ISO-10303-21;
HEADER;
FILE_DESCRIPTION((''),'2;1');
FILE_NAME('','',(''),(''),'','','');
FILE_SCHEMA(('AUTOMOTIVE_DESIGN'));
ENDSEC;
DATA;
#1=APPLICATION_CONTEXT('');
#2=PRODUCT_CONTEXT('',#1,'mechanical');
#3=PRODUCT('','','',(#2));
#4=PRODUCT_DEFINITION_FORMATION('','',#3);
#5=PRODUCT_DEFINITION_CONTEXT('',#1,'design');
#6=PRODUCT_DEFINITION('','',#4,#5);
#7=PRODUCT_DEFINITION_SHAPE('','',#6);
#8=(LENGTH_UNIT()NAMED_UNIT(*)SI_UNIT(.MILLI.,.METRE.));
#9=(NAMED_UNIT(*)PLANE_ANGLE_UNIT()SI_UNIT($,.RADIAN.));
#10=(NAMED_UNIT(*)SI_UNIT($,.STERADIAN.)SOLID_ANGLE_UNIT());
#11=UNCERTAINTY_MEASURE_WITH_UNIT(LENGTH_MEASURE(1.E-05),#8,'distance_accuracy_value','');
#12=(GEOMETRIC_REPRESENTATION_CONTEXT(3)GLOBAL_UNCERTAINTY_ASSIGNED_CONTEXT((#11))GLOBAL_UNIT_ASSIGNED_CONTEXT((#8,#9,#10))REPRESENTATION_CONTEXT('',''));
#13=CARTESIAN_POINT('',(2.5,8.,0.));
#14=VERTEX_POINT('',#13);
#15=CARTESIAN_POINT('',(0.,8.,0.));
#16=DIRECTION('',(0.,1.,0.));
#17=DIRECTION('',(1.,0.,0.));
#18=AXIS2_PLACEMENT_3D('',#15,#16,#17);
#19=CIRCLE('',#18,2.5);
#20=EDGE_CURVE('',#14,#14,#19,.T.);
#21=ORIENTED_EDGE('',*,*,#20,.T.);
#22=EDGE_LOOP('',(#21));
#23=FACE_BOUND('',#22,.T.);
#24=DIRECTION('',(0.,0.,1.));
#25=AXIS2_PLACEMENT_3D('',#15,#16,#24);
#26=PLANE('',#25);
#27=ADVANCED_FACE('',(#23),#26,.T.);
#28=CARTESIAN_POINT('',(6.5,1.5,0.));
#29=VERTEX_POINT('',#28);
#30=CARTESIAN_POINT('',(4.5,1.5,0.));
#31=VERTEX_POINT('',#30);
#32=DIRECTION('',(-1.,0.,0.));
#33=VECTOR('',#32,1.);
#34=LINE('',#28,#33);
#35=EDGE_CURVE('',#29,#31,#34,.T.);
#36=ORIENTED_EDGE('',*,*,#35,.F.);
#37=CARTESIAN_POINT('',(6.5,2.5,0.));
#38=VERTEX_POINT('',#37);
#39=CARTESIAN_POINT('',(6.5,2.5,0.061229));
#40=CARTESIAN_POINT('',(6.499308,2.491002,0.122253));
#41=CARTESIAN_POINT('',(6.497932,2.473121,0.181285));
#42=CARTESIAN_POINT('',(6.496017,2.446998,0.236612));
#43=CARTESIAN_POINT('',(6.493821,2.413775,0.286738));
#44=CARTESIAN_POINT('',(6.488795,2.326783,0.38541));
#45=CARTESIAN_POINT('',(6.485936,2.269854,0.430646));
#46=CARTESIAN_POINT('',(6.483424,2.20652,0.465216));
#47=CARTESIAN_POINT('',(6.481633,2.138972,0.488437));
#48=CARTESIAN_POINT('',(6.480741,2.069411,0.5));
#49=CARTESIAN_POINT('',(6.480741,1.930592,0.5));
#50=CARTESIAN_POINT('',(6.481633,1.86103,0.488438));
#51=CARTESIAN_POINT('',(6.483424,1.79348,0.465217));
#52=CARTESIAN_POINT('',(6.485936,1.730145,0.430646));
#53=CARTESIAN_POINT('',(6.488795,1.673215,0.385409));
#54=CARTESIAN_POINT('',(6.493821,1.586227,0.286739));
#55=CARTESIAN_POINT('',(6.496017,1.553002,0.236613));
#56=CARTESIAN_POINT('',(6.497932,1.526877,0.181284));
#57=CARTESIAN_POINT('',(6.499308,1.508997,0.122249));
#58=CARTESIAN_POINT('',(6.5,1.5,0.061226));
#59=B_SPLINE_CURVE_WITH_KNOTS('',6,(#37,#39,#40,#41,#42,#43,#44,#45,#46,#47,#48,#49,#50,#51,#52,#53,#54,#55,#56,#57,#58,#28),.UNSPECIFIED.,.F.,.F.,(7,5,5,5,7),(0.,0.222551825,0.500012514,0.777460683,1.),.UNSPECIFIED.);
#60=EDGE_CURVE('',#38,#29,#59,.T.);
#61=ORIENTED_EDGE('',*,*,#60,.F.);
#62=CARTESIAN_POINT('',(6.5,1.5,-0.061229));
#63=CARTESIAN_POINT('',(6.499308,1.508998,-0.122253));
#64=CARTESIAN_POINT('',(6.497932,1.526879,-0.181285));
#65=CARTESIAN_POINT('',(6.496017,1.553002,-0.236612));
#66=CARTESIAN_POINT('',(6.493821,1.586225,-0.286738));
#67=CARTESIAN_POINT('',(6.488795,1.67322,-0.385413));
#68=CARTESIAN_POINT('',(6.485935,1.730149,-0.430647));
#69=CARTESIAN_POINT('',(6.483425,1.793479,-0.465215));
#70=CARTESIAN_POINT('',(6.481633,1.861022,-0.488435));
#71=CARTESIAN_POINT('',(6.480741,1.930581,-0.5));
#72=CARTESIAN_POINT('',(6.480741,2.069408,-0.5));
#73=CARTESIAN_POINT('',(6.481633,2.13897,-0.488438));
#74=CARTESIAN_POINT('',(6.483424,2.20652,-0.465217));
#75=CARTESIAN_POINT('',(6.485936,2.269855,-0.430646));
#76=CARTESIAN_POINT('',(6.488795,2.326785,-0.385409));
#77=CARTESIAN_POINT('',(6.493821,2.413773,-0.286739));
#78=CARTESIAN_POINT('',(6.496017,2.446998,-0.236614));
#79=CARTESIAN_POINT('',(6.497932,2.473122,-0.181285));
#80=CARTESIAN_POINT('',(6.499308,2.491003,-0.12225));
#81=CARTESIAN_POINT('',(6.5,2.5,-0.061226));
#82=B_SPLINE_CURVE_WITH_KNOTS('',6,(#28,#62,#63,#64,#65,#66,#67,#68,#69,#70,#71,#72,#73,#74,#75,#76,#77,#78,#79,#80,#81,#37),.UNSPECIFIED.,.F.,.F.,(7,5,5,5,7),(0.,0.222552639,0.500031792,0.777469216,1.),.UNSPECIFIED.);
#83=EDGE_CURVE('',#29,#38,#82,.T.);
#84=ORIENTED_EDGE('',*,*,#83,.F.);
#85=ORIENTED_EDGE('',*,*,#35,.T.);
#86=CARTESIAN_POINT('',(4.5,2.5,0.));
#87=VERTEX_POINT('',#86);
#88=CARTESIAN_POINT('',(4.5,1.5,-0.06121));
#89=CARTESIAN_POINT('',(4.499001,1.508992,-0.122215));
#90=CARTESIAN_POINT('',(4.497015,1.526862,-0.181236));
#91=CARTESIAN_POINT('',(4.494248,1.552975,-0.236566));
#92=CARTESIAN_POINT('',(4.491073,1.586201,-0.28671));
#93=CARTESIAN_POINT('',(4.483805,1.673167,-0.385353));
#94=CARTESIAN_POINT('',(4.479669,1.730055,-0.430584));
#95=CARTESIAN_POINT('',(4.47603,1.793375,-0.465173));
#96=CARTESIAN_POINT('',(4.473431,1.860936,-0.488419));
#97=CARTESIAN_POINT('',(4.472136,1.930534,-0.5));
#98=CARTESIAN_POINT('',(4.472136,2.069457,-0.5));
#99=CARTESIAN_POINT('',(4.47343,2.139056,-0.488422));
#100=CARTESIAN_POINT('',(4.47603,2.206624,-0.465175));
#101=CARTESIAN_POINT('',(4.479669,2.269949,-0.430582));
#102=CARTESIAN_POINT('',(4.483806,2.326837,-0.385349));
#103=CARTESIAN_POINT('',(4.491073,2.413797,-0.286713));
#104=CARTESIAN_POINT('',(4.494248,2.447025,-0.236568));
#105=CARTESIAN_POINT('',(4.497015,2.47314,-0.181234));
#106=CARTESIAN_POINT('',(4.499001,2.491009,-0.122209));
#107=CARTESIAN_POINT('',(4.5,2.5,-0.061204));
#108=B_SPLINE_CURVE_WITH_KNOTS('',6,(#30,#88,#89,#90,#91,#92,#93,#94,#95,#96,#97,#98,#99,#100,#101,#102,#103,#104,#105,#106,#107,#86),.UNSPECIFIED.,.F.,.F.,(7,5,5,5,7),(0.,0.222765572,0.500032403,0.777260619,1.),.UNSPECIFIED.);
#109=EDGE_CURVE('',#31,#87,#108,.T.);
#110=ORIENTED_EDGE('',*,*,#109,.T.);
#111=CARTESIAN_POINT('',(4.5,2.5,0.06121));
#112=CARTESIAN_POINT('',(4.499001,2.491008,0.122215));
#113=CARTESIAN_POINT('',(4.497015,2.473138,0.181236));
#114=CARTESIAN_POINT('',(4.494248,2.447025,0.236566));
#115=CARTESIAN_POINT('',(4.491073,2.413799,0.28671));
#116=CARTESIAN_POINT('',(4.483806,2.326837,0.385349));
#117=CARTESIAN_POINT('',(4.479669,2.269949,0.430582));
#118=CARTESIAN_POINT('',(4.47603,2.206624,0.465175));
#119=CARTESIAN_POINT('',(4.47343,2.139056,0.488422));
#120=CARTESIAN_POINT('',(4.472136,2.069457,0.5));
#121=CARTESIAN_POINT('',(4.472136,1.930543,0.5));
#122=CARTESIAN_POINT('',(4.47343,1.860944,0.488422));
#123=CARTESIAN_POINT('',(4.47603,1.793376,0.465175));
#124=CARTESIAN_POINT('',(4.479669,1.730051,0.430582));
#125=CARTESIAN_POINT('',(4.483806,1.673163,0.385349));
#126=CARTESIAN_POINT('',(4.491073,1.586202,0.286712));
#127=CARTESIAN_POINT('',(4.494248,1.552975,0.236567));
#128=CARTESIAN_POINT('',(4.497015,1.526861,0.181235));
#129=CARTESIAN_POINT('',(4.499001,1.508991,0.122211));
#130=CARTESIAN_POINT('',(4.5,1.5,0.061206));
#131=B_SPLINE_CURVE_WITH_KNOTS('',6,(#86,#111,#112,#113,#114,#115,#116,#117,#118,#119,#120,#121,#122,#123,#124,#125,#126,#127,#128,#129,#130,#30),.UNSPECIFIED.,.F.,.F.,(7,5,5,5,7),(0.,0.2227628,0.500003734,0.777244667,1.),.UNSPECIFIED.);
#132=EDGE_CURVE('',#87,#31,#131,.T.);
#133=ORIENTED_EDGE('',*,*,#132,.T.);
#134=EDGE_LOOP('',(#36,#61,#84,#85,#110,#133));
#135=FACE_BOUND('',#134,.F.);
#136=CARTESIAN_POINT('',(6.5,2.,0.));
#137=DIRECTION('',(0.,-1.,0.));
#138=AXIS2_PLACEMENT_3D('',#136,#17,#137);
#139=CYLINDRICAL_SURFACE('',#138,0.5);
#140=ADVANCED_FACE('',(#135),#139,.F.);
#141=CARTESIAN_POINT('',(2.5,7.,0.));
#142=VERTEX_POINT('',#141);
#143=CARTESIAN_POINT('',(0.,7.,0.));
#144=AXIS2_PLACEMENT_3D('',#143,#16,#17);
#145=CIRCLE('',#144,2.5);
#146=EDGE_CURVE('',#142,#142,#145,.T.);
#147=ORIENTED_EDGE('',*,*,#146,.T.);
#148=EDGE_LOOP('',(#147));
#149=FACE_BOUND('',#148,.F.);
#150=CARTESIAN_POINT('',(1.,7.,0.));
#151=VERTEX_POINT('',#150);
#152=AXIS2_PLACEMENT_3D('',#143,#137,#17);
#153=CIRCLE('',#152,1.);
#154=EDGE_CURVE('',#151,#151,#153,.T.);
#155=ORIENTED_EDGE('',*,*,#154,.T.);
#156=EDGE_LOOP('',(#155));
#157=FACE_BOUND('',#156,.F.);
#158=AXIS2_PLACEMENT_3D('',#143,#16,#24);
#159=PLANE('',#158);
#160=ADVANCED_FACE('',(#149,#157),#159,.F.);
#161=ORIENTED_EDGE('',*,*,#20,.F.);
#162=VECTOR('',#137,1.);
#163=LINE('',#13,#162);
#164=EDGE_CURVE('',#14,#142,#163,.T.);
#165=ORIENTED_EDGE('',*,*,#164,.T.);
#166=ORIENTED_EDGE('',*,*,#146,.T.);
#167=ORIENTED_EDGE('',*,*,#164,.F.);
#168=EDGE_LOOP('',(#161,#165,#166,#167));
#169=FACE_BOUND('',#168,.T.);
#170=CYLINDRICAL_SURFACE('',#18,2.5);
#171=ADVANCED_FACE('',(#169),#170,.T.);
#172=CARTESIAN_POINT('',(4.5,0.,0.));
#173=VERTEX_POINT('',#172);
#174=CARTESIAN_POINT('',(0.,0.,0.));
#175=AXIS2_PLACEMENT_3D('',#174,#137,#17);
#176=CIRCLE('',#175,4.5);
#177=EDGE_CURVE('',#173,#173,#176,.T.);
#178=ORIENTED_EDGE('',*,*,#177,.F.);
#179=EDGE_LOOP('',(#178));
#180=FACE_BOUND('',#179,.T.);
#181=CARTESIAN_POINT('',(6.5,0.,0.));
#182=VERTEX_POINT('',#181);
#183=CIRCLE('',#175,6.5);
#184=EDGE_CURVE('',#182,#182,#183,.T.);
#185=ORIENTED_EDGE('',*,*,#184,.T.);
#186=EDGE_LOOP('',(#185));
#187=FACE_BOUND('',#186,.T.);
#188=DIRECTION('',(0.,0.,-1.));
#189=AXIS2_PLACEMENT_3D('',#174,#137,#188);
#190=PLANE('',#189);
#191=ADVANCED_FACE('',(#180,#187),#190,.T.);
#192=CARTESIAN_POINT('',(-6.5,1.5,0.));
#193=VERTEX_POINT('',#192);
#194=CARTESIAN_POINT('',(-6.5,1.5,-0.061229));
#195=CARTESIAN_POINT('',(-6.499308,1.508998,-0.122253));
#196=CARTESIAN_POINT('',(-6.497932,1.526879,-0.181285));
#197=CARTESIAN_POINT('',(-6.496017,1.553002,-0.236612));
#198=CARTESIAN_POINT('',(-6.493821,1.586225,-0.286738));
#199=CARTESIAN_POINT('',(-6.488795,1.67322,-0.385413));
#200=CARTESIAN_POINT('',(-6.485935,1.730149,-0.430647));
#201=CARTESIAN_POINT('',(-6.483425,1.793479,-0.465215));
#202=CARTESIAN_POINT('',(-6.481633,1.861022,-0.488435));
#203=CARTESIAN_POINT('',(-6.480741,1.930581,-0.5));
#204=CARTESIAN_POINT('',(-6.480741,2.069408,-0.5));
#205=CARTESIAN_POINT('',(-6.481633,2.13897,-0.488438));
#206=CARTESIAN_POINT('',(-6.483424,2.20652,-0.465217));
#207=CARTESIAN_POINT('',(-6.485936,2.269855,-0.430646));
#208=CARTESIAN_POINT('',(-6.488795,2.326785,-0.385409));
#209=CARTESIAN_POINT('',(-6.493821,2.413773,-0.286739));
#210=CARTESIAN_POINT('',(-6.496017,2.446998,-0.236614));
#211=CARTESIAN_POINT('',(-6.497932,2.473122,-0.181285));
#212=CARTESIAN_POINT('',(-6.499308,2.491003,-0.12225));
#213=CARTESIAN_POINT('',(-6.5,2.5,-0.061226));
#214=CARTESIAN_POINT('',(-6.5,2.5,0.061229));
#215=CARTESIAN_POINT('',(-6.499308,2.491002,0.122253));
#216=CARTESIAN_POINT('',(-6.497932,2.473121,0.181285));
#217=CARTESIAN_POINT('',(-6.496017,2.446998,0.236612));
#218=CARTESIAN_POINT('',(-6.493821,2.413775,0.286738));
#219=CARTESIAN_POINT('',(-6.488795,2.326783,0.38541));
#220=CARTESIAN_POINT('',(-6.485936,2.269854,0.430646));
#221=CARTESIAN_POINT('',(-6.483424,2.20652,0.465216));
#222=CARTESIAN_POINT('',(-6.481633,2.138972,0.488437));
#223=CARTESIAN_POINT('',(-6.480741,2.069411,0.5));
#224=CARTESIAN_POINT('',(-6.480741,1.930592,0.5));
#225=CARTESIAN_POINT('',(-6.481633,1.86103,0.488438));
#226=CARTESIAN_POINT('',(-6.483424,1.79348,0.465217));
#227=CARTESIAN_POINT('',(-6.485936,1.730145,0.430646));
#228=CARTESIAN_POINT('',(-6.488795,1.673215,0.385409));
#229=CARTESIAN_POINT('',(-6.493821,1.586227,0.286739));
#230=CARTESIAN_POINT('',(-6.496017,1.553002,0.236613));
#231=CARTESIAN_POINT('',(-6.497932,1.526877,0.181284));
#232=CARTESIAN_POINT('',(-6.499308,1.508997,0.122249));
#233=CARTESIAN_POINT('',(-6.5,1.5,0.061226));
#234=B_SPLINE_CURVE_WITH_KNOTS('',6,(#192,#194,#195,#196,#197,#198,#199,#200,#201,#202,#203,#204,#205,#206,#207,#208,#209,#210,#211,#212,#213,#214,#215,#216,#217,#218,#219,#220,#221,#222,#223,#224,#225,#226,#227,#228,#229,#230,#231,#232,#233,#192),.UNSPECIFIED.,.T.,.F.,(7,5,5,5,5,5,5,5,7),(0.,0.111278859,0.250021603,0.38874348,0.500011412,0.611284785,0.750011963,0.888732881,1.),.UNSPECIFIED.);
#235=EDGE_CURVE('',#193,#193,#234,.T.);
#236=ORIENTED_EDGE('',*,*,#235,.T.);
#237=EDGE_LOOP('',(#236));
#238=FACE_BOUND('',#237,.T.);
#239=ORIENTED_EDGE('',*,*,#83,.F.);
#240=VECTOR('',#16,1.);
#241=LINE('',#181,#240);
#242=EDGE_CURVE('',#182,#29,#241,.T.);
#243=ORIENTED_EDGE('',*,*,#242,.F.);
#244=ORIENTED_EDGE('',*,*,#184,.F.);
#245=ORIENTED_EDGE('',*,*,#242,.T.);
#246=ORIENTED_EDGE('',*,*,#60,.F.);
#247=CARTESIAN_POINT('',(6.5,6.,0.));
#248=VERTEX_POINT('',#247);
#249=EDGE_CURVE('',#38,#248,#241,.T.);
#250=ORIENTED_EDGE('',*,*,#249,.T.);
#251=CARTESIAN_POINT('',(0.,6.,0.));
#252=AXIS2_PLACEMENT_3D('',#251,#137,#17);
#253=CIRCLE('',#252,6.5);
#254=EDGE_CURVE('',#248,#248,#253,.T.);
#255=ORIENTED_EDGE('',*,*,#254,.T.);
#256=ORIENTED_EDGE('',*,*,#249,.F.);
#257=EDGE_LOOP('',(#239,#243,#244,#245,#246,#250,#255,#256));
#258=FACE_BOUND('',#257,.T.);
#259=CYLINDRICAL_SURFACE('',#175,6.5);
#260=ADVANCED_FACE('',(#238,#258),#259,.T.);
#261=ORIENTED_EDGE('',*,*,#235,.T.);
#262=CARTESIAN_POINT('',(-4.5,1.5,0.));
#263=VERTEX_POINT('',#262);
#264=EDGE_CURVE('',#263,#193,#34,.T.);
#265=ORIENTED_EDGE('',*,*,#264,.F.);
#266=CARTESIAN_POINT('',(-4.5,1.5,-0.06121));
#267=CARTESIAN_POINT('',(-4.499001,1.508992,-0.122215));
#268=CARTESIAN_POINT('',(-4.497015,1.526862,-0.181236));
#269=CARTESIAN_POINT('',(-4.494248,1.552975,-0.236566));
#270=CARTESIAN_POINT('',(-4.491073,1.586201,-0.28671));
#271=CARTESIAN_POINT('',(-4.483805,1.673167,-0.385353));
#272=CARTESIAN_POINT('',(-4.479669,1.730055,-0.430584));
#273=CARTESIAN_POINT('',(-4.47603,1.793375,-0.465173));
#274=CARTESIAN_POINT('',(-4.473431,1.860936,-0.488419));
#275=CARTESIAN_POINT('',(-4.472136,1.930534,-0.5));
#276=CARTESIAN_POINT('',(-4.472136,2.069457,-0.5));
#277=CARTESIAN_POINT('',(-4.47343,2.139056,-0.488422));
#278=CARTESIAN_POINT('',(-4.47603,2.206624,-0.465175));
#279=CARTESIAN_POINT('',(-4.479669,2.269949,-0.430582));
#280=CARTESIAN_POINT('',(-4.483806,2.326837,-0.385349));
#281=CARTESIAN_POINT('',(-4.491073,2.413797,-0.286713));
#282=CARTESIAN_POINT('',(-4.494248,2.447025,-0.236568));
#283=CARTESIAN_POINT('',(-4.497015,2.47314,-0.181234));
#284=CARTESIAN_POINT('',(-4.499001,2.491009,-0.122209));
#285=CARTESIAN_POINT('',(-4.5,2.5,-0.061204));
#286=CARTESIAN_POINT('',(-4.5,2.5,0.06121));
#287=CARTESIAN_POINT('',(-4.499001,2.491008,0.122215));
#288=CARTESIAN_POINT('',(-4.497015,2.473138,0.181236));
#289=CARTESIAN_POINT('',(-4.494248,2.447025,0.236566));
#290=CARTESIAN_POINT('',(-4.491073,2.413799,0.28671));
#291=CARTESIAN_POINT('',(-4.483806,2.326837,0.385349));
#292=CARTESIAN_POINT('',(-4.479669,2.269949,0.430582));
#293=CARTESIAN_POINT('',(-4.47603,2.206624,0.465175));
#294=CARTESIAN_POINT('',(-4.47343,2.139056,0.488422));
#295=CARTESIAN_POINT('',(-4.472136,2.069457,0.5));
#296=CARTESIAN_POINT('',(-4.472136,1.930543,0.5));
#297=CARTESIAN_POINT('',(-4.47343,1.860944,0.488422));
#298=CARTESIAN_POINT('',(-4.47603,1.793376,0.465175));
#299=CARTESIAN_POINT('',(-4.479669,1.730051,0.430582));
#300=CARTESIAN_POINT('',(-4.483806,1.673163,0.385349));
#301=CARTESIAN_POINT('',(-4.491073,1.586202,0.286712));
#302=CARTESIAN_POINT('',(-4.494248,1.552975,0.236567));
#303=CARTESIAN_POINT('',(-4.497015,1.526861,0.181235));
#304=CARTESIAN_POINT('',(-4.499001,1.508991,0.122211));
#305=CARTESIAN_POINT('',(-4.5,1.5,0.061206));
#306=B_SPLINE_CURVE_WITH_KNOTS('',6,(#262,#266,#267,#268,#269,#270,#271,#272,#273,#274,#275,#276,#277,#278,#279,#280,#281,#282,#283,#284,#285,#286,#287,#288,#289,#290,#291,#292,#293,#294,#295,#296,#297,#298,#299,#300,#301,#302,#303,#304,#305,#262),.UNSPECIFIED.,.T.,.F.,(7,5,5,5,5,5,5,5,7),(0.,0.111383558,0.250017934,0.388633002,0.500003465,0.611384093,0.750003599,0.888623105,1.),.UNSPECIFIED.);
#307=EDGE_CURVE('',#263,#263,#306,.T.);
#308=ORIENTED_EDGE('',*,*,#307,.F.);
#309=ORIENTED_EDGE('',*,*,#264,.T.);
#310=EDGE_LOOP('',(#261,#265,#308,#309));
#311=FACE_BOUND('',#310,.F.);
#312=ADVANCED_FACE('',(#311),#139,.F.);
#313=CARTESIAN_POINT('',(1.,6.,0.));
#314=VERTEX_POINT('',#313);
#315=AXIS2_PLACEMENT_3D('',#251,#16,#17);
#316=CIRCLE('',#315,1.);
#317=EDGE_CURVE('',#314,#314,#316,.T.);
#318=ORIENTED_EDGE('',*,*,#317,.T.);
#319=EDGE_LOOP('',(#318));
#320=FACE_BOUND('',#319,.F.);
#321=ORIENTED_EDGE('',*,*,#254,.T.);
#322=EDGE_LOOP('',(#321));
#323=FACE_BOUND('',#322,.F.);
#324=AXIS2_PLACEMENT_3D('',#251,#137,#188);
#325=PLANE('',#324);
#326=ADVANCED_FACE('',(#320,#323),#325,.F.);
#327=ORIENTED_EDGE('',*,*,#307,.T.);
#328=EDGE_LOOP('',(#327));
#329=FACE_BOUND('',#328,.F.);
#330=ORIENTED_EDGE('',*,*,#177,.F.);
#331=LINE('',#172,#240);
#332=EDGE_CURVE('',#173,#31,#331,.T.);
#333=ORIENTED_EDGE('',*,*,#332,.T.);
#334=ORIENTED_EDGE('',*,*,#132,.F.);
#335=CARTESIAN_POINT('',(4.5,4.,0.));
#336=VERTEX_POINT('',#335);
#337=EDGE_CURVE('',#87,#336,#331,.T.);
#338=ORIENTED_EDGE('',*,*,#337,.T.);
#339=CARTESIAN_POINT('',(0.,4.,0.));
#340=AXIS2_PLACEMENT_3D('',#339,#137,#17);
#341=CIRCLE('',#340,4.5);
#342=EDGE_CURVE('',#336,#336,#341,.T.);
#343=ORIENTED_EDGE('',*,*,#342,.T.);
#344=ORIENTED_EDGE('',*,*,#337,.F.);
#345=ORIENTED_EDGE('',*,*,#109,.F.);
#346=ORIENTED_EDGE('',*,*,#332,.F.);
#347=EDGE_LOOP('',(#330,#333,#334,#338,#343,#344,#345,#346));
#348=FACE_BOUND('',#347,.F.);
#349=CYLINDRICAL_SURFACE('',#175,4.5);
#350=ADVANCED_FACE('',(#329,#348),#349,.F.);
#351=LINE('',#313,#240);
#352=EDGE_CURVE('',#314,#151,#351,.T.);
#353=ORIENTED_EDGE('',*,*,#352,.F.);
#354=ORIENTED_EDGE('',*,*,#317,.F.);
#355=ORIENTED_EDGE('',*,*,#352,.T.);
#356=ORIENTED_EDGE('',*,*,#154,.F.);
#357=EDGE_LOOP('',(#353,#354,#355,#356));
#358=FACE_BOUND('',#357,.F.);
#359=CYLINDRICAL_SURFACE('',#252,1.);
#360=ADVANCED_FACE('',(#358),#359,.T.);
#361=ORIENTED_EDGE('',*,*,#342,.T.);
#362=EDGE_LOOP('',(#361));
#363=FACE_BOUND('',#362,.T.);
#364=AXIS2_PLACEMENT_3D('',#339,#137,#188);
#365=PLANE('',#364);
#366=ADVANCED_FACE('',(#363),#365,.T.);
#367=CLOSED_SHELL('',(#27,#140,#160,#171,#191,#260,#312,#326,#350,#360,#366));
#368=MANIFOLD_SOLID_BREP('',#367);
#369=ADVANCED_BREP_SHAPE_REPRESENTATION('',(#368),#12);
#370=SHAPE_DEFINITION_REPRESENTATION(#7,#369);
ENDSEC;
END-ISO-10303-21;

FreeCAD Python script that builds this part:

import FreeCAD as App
import Part
import Sketcher

V = App.Vector
Q = App.Units.Quantity

doc = App.newDocument("Part")
body = doc.addObject("PartDesign::Body", "Body")

sketch1 = body.newObject("Sketcher::SketchObject", "Sketch")
sketch1.AttachmentSupport = (doc.getObject("XZ_Plane"), [""])
sketch1.MapMode = "FlatFace"
sketch1.addGeometry(Part.Circle(V(0, 0, 0), V(0, 0, 1), 6.5), False)
sketch1.addConstraint([
    Sketcher.Constraint("Coincident", 0, 3, -1, 1),
    Sketcher.Constraint("Diameter", 0, Q("13 mm")),
])
pad1 = body.newObject("PartDesign::Pad", "Pad")
pad1.Profile = sketch1
pad1.Length = 6
pad1.Reversed = True

sketch2 = body.newObject("Sketcher::SketchObject", "Sketch001")
sketch2.AttachmentSupport = (doc.getObject("XZ_Plane"), [""])
sketch2.MapMode = "FlatFace"
sketch2.addGeometry(Part.Circle(V(0, 0, 0), V(0, 0, 1), 4.5), False)
sketch2.addConstraint([
    Sketcher.Constraint("Coincident", 0, 3, -1, 1),
    Sketcher.Constraint("Diameter", 0, Q("9 mm")),
])
pocket1 = body.newObject("PartDesign::Pocket", "Pocket")
pocket1.Profile = sketch2
pocket1.Length = 4

sketch3 = body.newObject("Sketcher::SketchObject", "Sketch002")
sketch3.AttachmentSupport = (doc.getObject("YZ_Plane"), [""])
sketch3.MapMode = "FlatFace"
sketch3.AttachmentOffset = App.Placement(V(0, 0, 6.5), App.Rotation())
sketch3.addGeometry(Part.Circle(V(2, 0, 0), V(0, 0, 1), 0.5), False)
sketch3.addConstraint([
    Sketcher.Constraint("PointOnObject", 0, 3, -1),
    Sketcher.Constraint("Diameter", 0, Q("1 mm")),
    Sketcher.Constraint("DistanceX", -1, 1, 0, 3, Q("2 mm")),
])
pocket2 = body.newObject("PartDesign::Pocket", "Pocket001")
pocket2.Profile = sketch3
pocket2.Length = 17.8502

sketch4 = body.newObject("Sketcher::SketchObject", "Sketch003")
sketch4.AttachmentSupport = (doc.getObject("XZ_Plane"), [""])
sketch4.MapMode = "FlatFace"
sketch4.AttachmentOffset = App.Placement(V(0, 0, -6), App.Rotation())
sketch4.addGeometry(Part.Circle(V(0, 0, 0), V(0, 0, 1), 1), False)
sketch4.addConstraint([
    Sketcher.Constraint("Coincident", 0, 3, -1, 1),
    Sketcher.Constraint("Diameter", 0, Q("2 mm")),
])
pad2 = body.newObject("PartDesign::Pad", "Pad001")
pad2.Profile = sketch4
pad2.Length = 2
pad2.Reversed = True

sketch5 = body.newObject("Sketcher::SketchObject", "Sketch004")
sketch5.AttachmentSupport = (doc.getObject("XZ_Plane"), [""])
sketch5.MapMode = "FlatFace"
sketch5.AttachmentOffset = App.Placement(V(0, 0, -8), App.Rotation())
sketch5.addGeometry(Part.Circle(V(0, 0, 0), V(0, 0, 1), 2.5), False)
sketch5.addConstraint([
    Sketcher.Constraint("Coincident", 0, 3, -1, 1),
    Sketcher.Constraint("Diameter", 0, Q("5 mm")),
])
pad3 = body.newObject("PartDesign::Pad", "Pad002")
pad3.Profile = sketch5
pad3.Length = 1

doc.recompute()
